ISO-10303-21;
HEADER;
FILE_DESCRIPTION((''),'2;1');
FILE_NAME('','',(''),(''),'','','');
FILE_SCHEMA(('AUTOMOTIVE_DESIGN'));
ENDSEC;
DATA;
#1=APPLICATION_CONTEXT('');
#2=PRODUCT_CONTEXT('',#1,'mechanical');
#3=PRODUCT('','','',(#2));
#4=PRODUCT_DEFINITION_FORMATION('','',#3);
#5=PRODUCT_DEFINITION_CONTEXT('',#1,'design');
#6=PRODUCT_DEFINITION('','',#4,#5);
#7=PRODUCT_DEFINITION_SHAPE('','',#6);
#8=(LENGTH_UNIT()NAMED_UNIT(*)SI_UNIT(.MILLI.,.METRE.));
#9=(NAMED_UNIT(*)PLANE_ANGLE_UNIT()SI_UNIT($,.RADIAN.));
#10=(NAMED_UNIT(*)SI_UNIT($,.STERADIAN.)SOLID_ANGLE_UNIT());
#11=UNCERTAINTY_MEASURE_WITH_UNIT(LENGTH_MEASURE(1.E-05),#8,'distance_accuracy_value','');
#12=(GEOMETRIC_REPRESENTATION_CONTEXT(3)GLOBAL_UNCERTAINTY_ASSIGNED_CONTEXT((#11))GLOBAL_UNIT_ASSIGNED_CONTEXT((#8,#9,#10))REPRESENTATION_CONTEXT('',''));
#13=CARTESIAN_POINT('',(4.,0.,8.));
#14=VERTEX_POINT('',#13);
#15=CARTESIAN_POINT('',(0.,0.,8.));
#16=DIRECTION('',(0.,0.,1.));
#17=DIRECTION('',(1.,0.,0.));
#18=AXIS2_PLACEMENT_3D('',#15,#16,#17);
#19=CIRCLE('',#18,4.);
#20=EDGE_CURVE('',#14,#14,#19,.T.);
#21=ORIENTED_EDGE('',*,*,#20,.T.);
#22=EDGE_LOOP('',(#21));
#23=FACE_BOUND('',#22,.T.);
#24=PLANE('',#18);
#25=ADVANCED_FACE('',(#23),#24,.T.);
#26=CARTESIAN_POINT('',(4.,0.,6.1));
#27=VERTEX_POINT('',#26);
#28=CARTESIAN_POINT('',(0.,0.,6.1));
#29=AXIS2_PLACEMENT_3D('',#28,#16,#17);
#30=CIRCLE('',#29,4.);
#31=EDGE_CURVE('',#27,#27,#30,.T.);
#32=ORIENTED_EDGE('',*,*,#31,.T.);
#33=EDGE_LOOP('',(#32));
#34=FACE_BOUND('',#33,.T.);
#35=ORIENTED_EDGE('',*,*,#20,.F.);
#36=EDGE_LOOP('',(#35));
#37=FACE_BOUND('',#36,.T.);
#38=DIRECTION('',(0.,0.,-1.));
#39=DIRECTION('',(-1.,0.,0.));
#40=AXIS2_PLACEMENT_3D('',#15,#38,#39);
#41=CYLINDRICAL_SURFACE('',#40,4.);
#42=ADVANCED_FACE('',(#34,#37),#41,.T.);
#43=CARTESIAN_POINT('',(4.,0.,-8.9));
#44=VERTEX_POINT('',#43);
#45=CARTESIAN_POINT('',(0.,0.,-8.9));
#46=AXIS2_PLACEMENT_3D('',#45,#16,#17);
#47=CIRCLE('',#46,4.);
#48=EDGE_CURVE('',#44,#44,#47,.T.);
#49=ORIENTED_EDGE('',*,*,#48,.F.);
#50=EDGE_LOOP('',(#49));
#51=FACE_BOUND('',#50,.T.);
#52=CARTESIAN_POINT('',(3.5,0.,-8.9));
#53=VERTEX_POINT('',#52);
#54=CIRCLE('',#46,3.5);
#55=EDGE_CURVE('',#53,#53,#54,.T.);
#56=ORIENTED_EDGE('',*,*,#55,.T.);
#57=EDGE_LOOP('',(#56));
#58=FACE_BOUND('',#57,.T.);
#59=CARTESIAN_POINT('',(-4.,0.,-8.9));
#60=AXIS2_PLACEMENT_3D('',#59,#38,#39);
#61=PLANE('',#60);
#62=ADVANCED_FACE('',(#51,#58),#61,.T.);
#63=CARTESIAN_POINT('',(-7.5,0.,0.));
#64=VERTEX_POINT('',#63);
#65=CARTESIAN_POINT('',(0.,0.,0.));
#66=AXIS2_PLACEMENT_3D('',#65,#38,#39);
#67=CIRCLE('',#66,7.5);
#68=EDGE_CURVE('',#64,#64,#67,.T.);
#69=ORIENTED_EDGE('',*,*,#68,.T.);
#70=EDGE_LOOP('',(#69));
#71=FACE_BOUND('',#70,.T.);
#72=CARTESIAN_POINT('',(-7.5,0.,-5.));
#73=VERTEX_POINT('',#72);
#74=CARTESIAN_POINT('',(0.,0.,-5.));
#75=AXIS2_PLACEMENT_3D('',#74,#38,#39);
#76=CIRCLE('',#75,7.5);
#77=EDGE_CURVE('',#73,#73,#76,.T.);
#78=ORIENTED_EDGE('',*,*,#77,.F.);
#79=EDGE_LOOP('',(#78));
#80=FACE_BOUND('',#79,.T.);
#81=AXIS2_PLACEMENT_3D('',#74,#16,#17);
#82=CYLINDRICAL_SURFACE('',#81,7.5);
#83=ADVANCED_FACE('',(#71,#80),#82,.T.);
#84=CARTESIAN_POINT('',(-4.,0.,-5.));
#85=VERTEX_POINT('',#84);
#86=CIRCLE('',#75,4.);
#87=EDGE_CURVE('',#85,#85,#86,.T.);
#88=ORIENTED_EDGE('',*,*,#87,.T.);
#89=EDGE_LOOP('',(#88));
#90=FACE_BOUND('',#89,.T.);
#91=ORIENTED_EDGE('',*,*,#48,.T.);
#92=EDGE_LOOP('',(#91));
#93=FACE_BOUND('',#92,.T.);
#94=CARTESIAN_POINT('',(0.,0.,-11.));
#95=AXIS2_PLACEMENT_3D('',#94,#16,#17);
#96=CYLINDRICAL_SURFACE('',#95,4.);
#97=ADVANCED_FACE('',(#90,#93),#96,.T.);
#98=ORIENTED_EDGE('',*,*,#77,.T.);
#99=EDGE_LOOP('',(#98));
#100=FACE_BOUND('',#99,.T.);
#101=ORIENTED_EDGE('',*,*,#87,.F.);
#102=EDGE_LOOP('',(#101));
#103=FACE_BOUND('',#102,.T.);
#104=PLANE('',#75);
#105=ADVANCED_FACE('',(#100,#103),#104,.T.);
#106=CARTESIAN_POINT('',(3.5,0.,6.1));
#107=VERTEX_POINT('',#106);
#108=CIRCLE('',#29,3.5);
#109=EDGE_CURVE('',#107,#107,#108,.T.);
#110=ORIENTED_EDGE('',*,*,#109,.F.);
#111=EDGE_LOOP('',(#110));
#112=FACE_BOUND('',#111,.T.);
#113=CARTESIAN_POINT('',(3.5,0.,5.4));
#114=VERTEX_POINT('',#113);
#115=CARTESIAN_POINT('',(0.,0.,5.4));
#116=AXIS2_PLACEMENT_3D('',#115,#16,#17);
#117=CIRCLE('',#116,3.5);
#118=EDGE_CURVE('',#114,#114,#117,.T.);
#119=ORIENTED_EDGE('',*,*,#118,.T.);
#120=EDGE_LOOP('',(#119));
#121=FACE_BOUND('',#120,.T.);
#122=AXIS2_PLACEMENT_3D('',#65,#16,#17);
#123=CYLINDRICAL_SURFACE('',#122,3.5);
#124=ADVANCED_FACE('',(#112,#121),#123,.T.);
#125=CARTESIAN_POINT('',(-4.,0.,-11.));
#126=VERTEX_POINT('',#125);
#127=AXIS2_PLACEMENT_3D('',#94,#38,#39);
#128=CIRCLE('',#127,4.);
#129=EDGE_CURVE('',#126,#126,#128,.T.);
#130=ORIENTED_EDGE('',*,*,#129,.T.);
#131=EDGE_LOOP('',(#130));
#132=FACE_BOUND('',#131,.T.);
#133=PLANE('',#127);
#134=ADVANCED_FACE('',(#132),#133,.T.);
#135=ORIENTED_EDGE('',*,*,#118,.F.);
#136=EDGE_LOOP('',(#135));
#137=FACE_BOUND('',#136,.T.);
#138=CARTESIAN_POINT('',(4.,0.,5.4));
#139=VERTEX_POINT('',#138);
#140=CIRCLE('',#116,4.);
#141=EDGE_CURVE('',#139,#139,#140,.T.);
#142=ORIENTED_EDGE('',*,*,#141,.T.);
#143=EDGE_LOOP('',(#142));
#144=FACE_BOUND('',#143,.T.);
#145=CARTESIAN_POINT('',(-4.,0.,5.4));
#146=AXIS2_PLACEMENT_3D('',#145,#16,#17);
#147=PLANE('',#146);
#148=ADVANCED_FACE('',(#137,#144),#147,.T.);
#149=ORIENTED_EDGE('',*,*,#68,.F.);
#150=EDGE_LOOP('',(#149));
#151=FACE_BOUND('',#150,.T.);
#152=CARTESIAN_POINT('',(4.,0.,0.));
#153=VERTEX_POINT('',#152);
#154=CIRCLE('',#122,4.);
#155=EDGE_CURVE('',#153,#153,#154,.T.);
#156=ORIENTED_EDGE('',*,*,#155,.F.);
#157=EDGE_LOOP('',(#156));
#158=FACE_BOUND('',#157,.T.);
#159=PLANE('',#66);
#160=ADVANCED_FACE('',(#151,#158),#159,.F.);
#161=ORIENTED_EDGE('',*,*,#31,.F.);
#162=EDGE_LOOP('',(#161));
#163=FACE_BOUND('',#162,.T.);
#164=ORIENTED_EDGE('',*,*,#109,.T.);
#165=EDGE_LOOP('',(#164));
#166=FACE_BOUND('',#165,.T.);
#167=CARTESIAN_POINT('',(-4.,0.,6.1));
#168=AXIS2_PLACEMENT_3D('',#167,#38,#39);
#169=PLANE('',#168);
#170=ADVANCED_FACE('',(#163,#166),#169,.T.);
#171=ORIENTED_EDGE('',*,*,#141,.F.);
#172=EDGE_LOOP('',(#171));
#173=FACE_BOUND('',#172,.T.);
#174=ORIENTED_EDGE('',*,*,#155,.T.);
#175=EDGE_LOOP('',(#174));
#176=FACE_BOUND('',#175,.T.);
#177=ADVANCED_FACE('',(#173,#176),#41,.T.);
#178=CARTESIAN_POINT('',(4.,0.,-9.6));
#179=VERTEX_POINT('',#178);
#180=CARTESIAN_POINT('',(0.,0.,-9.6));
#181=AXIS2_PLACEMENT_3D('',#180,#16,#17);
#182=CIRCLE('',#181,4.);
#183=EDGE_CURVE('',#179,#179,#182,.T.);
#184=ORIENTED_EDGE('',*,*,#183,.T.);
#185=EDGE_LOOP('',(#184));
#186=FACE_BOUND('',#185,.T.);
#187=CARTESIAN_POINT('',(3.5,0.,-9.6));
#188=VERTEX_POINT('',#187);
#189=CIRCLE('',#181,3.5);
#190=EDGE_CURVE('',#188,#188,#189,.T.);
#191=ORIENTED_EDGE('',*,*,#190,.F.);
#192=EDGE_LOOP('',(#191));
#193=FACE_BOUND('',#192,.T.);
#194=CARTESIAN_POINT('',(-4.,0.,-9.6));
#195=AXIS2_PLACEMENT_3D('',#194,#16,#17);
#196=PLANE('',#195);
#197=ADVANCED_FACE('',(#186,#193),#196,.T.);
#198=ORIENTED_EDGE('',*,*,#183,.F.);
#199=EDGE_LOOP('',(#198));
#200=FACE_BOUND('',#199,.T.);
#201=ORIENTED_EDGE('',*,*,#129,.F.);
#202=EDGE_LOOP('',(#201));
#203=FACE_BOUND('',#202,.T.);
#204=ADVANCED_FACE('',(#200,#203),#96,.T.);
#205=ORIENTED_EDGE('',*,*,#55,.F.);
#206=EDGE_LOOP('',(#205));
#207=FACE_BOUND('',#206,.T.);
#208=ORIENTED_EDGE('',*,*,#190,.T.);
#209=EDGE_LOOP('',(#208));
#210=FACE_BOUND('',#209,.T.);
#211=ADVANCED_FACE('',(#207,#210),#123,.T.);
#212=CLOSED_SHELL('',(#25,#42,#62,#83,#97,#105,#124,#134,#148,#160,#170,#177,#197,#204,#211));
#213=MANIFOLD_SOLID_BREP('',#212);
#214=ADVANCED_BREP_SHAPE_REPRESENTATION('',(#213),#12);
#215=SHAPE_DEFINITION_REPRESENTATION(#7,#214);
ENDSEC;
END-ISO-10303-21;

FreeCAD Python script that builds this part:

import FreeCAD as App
import Part
import Sketcher

doc = App.newDocument("Part")
body = doc.addObject("PartDesign::Body", "Body")

# Sketch on XY plane
sketch1 = body.newObject("Sketcher::SketchObject", "Sketch")
sketch1.AttachmentSupport = (doc.getObject("XY_Plane"), [""])
sketch1.MapMode = "FlatFace"
sketch1.addGeometry(Part.Circle(App.Vector(0, 0, 0), App.Vector(0, 0, 1), 4), False)
sketch1.addConstraint([
    Sketcher.Constraint("Coincident", 0, 3, -1, 1),
    Sketcher.Constraint("Diameter", 0, 8.0),
])
pad1 = body.newObject("PartDesign::Pad", "Pad")
pad1.Profile = sketch1
pad1.Length = 8

# Sketch on XY plane
sketch2 = body.newObject("Sketcher::SketchObject", "Sketch001")
sketch2.AttachmentSupport = (doc.getObject("XY_Plane"), [""])
sketch2.MapMode = "FlatFace"
sketch2.addGeometry(Part.Circle(App.Vector(0, 0, 0), App.Vector(0, 0, 1), 7.5), False)
sketch2.addConstraint([
    Sketcher.Constraint("Coincident", 0, 3, -1, 1),
    Sketcher.Constraint("Diameter", 0, 15.0),
])
pad2 = body.newObject("PartDesign::Pad", "Pad001")
pad2.Profile = sketch2
pad2.Length = 5
pad2.Reversed = True

# Sketch on XY plane
sketch3 = body.newObject("Sketcher::SketchObject", "Sketch002")
sketch3.AttachmentSupport = (doc.getObject("XY_Plane"), [""])
sketch3.MapMode = "FlatFace"
sketch3.AttachmentOffset = App.Placement(App.Vector(0, 0, -11), App.Rotation())
sketch3.addGeometry(Part.Circle(App.Vector(0, 0, 0), App.Vector(0, 0, 1), 4), False)
sketch3.addConstraint([
    Sketcher.Constraint("Coincident", 0, 3, -1, 1),
    Sketcher.Constraint("Diameter", 0, 8.0),
])
pad3 = body.newObject("PartDesign::Pad", "Pad002")
pad3.Profile = sketch3
pad3.Length = 6

# Sketch on XZ plane
sketch4 = body.newObject("Sketcher::SketchObject", "Sketch003")
sketch4.AttachmentSupport = (doc.getObject("XZ_Plane"), [""])
sketch4.MapMode = "FlatFace"
sketch4.addGeometry([
    Part.LineSegment(App.Vector(-4, 5.4, 0), App.Vector(-4, 6.1, 0)),  # 0
    Part.LineSegment(App.Vector(-4, 6.1, 0), App.Vector(-3.5, 6.1, 0)),  # 1
    Part.LineSegment(App.Vector(-3.5, 6.1, 0), App.Vector(-3.5, 5.4, 0)),  # 2
    Part.LineSegment(App.Vector(-3.5, 5.4, 0), App.Vector(-4, 5.4, 0)),  # 3
    Part.LineSegment(App.Vector(-4, -9.6, 0), App.Vector(-4, -8.9, 0)),  # 4
    Part.LineSegment(App.Vector(-4, -8.9, 0), App.Vector(-3.5, -8.9, 0)),  # 5
    Part.LineSegment(App.Vector(-3.5, -8.9, 0), App.Vector(-3.5, -9.6, 0)),  # 6
    Part.LineSegment(App.Vector(-3.5, -9.6, 0), App.Vector(-4, -9.6, 0)),  # 7
], False)
sketch4.addConstraint([
    Sketcher.Constraint("Coincident", 0, 2, 1, 1),
    Sketcher.Constraint("Coincident", 1, 2, 2, 1),
    Sketcher.Constraint("Coincident", 2, 2, 3, 1),
    Sketcher.Constraint("Coincident", 3, 2, 0, 1),
    Sketcher.Constraint("Coincident", 4, 2, 5, 1),
    Sketcher.Constraint("Coincident", 5, 2, 6, 1),
    Sketcher.Constraint("Coincident", 6, 2, 7, 1),
    Sketcher.Constraint("Coincident", 7, 2, 4, 1),
    Sketcher.Constraint("Vertical", 0),
    Sketcher.Constraint("Horizontal", 1),
    Sketcher.Constraint("Vertical", 2),
    Sketcher.Constraint("Horizontal", 3),
    Sketcher.Constraint("Vertical", 4),
    Sketcher.Constraint("Horizontal", 5),
    Sketcher.Constraint("Vertical", 6),
    Sketcher.Constraint("Horizontal", 7),
    Sketcher.Constraint("Vertical", 3, 2, 4, 2),
    Sketcher.Constraint("Vertical", 2, 2, 5, 2),
    Sketcher.Constraint("Equal", 2, 4),
    Sketcher.Constraint("DistanceX", 1, 1, 1, 2, 0.5),
    Sketcher.Constraint("DistanceY", 0, 1, 0, 2, 0.7),
    Sketcher.Constraint("DistanceX", 0, 2, -1, 1, 4.0),
    Sketcher.Constraint("DistanceY", 4, 2, 0, 2, 15.0),
    Sketcher.Constraint("DistanceY", -1, 1, 0, 2, 6.1),
])
groove = body.newObject("PartDesign::Groove", "Groove")
groove.Profile = sketch4
groove.ReferenceAxis = (sketch4, ["V_Axis"])
groove.Angle = 360

doc.recompute()
